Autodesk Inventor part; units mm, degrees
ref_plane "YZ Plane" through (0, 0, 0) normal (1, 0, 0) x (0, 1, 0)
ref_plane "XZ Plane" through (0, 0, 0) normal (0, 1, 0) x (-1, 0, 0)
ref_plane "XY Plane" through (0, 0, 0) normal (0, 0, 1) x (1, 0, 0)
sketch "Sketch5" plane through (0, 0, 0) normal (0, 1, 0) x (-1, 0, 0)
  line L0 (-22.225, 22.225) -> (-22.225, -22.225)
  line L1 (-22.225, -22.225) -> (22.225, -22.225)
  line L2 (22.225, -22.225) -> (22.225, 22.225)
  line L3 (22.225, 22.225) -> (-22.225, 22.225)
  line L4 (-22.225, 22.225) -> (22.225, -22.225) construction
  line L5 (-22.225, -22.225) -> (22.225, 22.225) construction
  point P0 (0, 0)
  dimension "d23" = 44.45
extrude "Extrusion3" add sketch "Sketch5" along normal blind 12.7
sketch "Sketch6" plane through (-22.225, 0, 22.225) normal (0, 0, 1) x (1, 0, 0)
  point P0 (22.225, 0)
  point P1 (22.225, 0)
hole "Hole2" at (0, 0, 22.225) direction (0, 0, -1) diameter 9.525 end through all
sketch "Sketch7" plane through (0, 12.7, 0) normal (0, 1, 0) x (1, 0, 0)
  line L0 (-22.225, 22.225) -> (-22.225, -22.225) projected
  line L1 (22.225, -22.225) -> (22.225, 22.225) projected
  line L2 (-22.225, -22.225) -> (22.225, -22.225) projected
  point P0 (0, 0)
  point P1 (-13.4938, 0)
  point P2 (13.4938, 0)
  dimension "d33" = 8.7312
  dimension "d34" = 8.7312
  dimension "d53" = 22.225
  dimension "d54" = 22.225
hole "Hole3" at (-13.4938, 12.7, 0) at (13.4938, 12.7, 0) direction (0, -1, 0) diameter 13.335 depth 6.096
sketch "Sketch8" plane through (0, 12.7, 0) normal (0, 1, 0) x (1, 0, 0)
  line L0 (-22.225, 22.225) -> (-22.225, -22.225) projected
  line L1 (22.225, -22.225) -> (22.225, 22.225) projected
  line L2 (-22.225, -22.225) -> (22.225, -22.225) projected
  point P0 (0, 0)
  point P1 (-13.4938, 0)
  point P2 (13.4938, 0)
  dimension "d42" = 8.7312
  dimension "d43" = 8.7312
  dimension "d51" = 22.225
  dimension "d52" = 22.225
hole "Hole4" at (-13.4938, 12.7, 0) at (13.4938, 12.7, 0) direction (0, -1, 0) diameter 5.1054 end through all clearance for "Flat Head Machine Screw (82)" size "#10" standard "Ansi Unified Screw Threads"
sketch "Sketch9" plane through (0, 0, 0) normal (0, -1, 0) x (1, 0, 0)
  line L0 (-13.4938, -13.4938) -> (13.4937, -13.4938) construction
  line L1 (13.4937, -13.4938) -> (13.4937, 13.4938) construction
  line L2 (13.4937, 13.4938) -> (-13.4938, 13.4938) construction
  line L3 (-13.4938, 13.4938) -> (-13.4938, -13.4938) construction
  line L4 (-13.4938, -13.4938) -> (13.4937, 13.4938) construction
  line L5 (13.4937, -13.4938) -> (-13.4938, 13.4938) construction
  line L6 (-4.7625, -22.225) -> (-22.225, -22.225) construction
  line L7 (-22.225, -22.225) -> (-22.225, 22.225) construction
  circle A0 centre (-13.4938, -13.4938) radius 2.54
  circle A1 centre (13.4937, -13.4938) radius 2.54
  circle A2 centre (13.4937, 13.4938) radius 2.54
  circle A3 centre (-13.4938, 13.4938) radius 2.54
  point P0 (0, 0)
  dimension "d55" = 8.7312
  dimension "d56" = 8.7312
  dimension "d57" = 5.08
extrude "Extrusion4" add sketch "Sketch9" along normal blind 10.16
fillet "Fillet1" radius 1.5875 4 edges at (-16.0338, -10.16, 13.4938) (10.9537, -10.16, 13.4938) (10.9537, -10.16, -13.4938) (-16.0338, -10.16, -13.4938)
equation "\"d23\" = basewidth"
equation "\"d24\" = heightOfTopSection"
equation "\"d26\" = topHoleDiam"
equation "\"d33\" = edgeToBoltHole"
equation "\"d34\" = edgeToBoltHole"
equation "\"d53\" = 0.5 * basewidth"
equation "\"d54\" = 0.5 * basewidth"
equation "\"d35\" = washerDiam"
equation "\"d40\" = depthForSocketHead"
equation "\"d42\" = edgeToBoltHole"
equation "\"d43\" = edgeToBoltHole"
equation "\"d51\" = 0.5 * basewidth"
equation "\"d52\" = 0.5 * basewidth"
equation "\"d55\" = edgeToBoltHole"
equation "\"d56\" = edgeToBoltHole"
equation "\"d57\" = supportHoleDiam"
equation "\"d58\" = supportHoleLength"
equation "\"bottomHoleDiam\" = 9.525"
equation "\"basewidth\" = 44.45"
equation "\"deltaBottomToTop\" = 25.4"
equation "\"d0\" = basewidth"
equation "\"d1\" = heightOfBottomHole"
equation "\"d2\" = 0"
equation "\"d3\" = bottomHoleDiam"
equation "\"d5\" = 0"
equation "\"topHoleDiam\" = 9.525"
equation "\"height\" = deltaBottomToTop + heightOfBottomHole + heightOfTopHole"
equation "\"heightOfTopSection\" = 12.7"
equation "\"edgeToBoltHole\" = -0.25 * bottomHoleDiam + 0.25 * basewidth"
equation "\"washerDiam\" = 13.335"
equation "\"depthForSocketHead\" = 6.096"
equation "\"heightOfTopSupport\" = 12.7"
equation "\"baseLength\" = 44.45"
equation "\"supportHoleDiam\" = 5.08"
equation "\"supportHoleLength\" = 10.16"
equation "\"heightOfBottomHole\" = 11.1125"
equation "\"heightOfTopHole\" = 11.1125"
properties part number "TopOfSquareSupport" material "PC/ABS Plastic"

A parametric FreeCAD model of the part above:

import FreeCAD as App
import Part
import Sketcher

V = App.Vector
Q = App.Units.Quantity


def edges_at(feature, points):
    """Names of the edges that pass closest to the given points."""
    edges = feature.Shape.Edges
    near = lambda p: min(range(len(edges)), key=lambda i: edges[i].distToShape(Part.Vertex(*p))[0])
    return sorted({f"Edge{near(p) + 1}" for p in points})

doc = App.newDocument("Part")
body = doc.addObject("PartDesign::Body", "Body")

# Sketch on XZ plane
sketch1 = body.newObject("Sketcher::SketchObject", "Sketch")
sketch1.AttachmentSupport = (doc.getObject("XZ_Plane"), [""])
sketch1.MapMode = "FlatFace"
sketch1.addGeometry([
    Part.LineSegment(V(-22.225, 22.225, 0), V(22.225, 22.225, 0)),
    Part.LineSegment(V(22.225, 22.225, 0), V(22.225, -22.225, 0)),
    Part.LineSegment(V(22.225, -22.225, 0), V(-22.225, -22.225, 0)),
    Part.LineSegment(V(-22.225, -22.225, 0), V(-22.225, 22.225, 0)),
], False)
sketch1.addConstraint([
    Sketcher.Constraint("Coincident", 0, 2, 1, 1),
    Sketcher.Constraint("Coincident", 1, 2, 2, 1),
    Sketcher.Constraint("Coincident", 2, 2, 3, 1),
    Sketcher.Constraint("Coincident", 3, 2, 0, 1),
    Sketcher.Constraint("Horizontal", 0),
    Sketcher.Constraint("Vertical", 1),
    Sketcher.Constraint("Horizontal", 2),
    Sketcher.Constraint("Vertical", 3),
    Sketcher.Constraint("Symmetric", 0, 2, 2, 2, -1, 1),
    Sketcher.Constraint("Equal", 2, 1),
    Sketcher.Constraint("DistanceX", 0, 1, 0, 2, Q("1.75 in")),
])
pad1 = body.newObject("PartDesign::Pad", "Pad")
pad1.Profile = sketch1
pad1.Length = Q("0.5 in")
pad1.Reversed = True

# Sketch on XY plane
sketch2 = body.newObject("Sketcher::SketchObject", "Sketch001")
sketch2.AttachmentSupport = (doc.getObject("XY_Plane"), [""])
sketch2.MapMode = "FlatFace"
sketch2.AttachmentOffset = App.Placement(V(0, 0, 0.875 * 25.4), App.Rotation())
sketch2.addGeometry(Part.Circle(V(0, 0, 0), V(0, 0, 1), 4.7625), False)
sketch2.addConstraint([
    Sketcher.Constraint("Coincident", 0, 3, -1, 1),
    Sketcher.Constraint("Diameter", 0, Q("0.375 in")),
])
doc.recompute()
hole = body.newObject("PartDesign::Hole", "Hole")
hole.Profile = sketch2
hole.ThreadType = "None"
hole.Diameter = Q("0.375 in")
hole.DepthType = "ThroughAll"

# Sketch on XZ plane
sketch3 = body.newObject("Sketcher::SketchObject", "Sketch002")
sketch3.AttachmentSupport = (doc.getObject("XZ_Plane"), [""])
sketch3.MapMode = "FlatFace"
sketch3.AttachmentOffset = App.Placement(V(0, 0, -0.5 * 25.4), App.Rotation())
sketch3.addGeometry([
    Part.Circle(V(-13.4938, 0, 0), V(0, 0, 1), 6.6675),
    Part.Circle(V(13.4938, 0, 0), V(0, 0, 1), 6.6675),
], False)
sketch3.addConstraint([
    Sketcher.Constraint("Equal", 0, 1),
    Sketcher.Constraint("Symmetric", 0, 3, 1, 3, -1, 1),
    Sketcher.Constraint("PointOnObject", 0, 3, -1),
    Sketcher.Constraint("Diameter", 0, Q("0.525 in")),
    Sketcher.Constraint("DistanceX", 0, 3, -1, 1, Q("0.531252 in")),
])
doc.recompute()
hole2 = body.newObject("PartDesign::Hole", "Hole001")
hole2.Profile = sketch3
hole2.ThreadType = "None"
hole2.Diameter = Q("0.525 in")
hole2.DepthType = "Dimension"
hole2.Depth = Q("0.24 in")
hole2.DrillPoint = "Flat"
hole2.Reversed = True

# Sketch on XZ plane
sketch4 = body.newObject("Sketcher::SketchObject", "Sketch003")
sketch4.AttachmentSupport = (doc.getObject("XZ_Plane"), [""])
sketch4.MapMode = "FlatFace"
sketch4.AttachmentOffset = App.Placement(V(0, 0, -0.5 * 25.4), App.Rotation())
sketch4.addGeometry([
    Part.Circle(V(-13.4938, 0, 0), V(0, 0, 1), 2.5527),
    Part.Circle(V(13.4938, 0, 0), V(0, 0, 1), 2.5527),
], False)
sketch4.addConstraint([
    Sketcher.Constraint("Equal", 0, 1),
    Sketcher.Constraint("Symmetric", 0, 3, 1, 3, -1, 1),
    Sketcher.Constraint("PointOnObject", 0, 3, -1),
    Sketcher.Constraint("Diameter", 0, Q("0.201 in")),
    Sketcher.Constraint("DistanceX", 0, 3, -1, 1, Q("0.531252 in")),
])
doc.recompute()
hole3 = body.newObject("PartDesign::Hole", "Hole002")
hole3.Profile = sketch4
hole3.ThreadType = "None"
hole3.Diameter = Q("0.201 in")
hole3.DepthType = "ThroughAll"
hole3.Reversed = True

# Sketch on XZ plane
sketch5 = body.newObject("Sketcher::SketchObject", "Sketch004")
sketch5.AttachmentSupport = (doc.getObject("XZ_Plane"), [""])
sketch5.MapMode = "FlatFace"
sketch5.addGeometry([
    Part.Circle(V(-13.4938, -13.4938, 0), V(0, 0, 1), 2.54),
    Part.Circle(V(13.4937, -13.4938, 0), V(0, 0, 1), 2.54),
    Part.Circle(V(13.4937, 13.4938, 0), V(0, 0, 1), 2.54),
    Part.Circle(V(-13.4938, 13.4938, 0), V(0, 0, 1), 2.54),
], False)
sketch5.addConstraint([
    Sketcher.Constraint("Equal", 0, 1),
    Sketcher.Constraint("Equal", 1, 2),
    Sketcher.Constraint("Equal", 2, 3),
    Sketcher.Constraint("Symmetric", 0, 3, 2, 3, -1, 1),
    Sketcher.Constraint("Symmetric", 1, 3, 3, 3, -1, 1),
    Sketcher.Constraint("Symmetric", 0, 3, 1, 3, -2),
    Sketcher.Constraint("Diameter", 0, Q("0.2 in")),
    Sketcher.Constraint("DistanceX", 0, 3, -1, 1, Q("0.531252 in")),
    Sketcher.Constraint("DistanceY", 0, 3, -1, 1, Q("0.531252 in")),
])
pad2 = body.newObject("PartDesign::Pad", "Pad001")
pad2.Profile = sketch5
pad2.Length = Q("0.4 in")
doc.recompute()

fillet = body.newObject("PartDesign::Fillet", "Fillet")
fillet.Base = (pad2, edges_at(pad2, [
    (-16.034, -10.16, 13.494),
    (10.954, -10.16, 13.494),
    (10.954, -10.16, -13.494),
    (-16.034, -10.16, -13.494),
]))
fillet.Radius = Q("0.0625 in")

doc.recompute()
